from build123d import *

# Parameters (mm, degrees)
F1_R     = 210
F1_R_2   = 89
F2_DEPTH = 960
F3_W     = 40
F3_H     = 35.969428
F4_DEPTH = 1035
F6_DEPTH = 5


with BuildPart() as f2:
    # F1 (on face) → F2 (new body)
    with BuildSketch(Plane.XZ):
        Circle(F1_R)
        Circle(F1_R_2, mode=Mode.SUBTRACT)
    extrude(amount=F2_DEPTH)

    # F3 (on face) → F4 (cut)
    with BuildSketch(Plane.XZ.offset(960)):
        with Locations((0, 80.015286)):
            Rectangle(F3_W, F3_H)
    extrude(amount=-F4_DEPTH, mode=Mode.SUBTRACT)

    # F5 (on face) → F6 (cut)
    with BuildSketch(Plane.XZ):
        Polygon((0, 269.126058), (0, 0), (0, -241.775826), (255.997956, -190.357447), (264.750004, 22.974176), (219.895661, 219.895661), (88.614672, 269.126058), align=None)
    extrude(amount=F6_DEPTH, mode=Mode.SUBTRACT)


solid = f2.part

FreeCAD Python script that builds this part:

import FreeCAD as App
import Part
import Sketcher

V = App.Vector
Q = App.Units.Quantity


def add_polygon(sketch, points):
    """Adds a closed chain of lines whose ends are joined by coincident constraints."""
    first, n = sketch.GeometryCount, len(points)
    for a, b in zip(points, points[1:] + points[:1]):
        sketch.addGeometry(Part.LineSegment(App.Vector(*a, 0), App.Vector(*b, 0)), False)
    for i in range(n):
        sketch.addConstraint(Sketcher.Constraint("Coincident", first + i, 2, first + (i + 1) % n, 1))

doc = App.newDocument("Part")
params = doc.addObject("Spreadsheet::Sheet", "Params")
for row, (alias, value) in enumerate([
    ("sketch1_diameter", "420 mm"),
    ("sketch1_diameter2", "178 mm"),
    ("pad1_length", "960 mm"),
    ("sketch2_width", "40 mm"),
    ("pocket1_length", "1035 mm"),
    ("pocket2_length", "5 mm"),
], start=1):
    params.set(f"A{row}", alias)
    params.set(f"B{row}", "=" + value)
    params.setAlias(f"B{row}", alias)

body = doc.addObject("PartDesign::Body", "Body")

sketch1 = doc.addObject("Sketcher::SketchObject", "Sketch")
body.addObject(sketch1)
sketch1.AttachmentSupport = (doc.XZ_Plane, [""])
sketch1.MapMode = "FlatFace"
sketch1.addGeometry(Part.Circle(V(0, 0, 0), V(0, 0, 1), 210), False)
sketch1.addGeometry(Part.Circle(V(0, 0, 0), V(0, 0, 1), 89), False)
sketch1.addConstraint(Sketcher.Constraint("Coincident", 0, 3, -1, 1))
sketch1.addConstraint(Sketcher.Constraint("Coincident", 1, 3, -1, 1))
sketch1.addConstraint(Sketcher.Constraint("Diameter", 0, Q("420 mm")))
sketch1.addConstraint(Sketcher.Constraint("Diameter", 1, Q("178 mm")))
sketch1.setExpression("Constraints[2]", "Params.sketch1_diameter")
sketch1.setExpression("Constraints[3]", "Params.sketch1_diameter2")
pad1 = doc.addObject("PartDesign::Pad", "Pad")
body.addObject(pad1)
pad1.Profile = sketch1
pad1.setExpression("Length", "Params.pad1_length")

sketch2 = doc.addObject("Sketcher::SketchObject", "Sketch001")
body.addObject(sketch2)
sketch2.AttachmentSupport = (doc.XZ_Plane, [""])
sketch2.MapMode = "FlatFace"
sketch2.AttachmentOffset = App.Placement(V(0, 0, 960), App.Rotation())
add_polygon(sketch2, [(-20, 98), (-20, 62), (20, 62), (20, 98)])
sketch2.addConstraint(Sketcher.Constraint("Vertical", 0))
sketch2.addConstraint(Sketcher.Constraint("Horizontal", 1))
sketch2.addConstraint(Sketcher.Constraint("Vertical", 2))
sketch2.addConstraint(Sketcher.Constraint("Horizontal", 3))
sketch2.addConstraint(Sketcher.Constraint("DistanceX", 1, 1, 1, 2, Q("40 mm")))
sketch2.addConstraint(Sketcher.Constraint("DistanceX", 0, 2, -1, 1, Q("20 mm")))
sketch2.addConstraint(Sketcher.Constraint("DistanceY", -1, 1, 2, 2, Q("98 mm")))
sketch2.addConstraint(Sketcher.Constraint("DistanceY", 0, 2, 0, 1, Q("35.969428 mm")))
sketch2.setExpression("Constraints[8]", "Params.sketch2_width")
pocket1 = doc.addObject("PartDesign::Pocket", "Pocket")
body.addObject(pocket1)
pocket1.Profile = sketch2
pocket1.setExpression("Length", "Params.pocket1_length")

sketch3 = doc.addObject("Sketcher::SketchObject", "Sketch002")
body.addObject(sketch3)
sketch3.AttachmentSupport = (doc.XZ_Plane, [""])
sketch3.MapMode = "FlatFace"
add_polygon(sketch3, [(0, 269), (0, -242), (256, -190), (265, 23), (220, 220), (89, 269)])
sketch3.addConstraint(Sketcher.Constraint("Vertical", 0))
sketch3.addConstraint(Sketcher.Constraint("Horizontal", 5))
sketch3.addConstraint(Sketcher.Constraint("PointOnObject", 0, 2, -2))
sketch3.addConstraint(Sketcher.Constraint("DistanceY", 0, 2, 2, 2, Q("264.750002 mm")))
sketch3.addConstraint(Sketcher.Constraint("DistanceX", 5, 2, 5, 1, Q("88.614672 mm")))
sketch3.addConstraint(Sketcher.Constraint("Distance", 1, Q("261.110711 mm")))
sketch3.addConstraint(Sketcher.Constraint("DistanceY", 0, 2, 0, 1, Q("510.901884 mm")))
sketch3.addConstraint(Sketcher.Constraint("DistanceX", -1, 1, 3, 2, Q("219.895661 mm")))
sketch3.addConstraint(Sketcher.Constraint("DistanceY", -1, 1, 3, 2, Q("219.895661 mm")))
sketch3.addConstraint(Sketcher.Constraint("DistanceY", -1, 1, 4, 2, Q("269.126058 mm")))
sketch3.addConstraint(Sketcher.Constraint("DistanceY", 0, 2, 1, 2, Q("51.418379 mm")))
sketch3.addConstraint(Sketcher.Constraint("DistanceX", 1, 2, 2, 2, Q("8.752048 mm")))
pocket2 = doc.addObject("PartDesign::Pocket", "Pocket001")
body.addObject(pocket2)
pocket2.Profile = sketch3
pocket2.setExpression("Length", "Params.pocket2_length")
pocket2.Reversed = True

doc.recompute()
